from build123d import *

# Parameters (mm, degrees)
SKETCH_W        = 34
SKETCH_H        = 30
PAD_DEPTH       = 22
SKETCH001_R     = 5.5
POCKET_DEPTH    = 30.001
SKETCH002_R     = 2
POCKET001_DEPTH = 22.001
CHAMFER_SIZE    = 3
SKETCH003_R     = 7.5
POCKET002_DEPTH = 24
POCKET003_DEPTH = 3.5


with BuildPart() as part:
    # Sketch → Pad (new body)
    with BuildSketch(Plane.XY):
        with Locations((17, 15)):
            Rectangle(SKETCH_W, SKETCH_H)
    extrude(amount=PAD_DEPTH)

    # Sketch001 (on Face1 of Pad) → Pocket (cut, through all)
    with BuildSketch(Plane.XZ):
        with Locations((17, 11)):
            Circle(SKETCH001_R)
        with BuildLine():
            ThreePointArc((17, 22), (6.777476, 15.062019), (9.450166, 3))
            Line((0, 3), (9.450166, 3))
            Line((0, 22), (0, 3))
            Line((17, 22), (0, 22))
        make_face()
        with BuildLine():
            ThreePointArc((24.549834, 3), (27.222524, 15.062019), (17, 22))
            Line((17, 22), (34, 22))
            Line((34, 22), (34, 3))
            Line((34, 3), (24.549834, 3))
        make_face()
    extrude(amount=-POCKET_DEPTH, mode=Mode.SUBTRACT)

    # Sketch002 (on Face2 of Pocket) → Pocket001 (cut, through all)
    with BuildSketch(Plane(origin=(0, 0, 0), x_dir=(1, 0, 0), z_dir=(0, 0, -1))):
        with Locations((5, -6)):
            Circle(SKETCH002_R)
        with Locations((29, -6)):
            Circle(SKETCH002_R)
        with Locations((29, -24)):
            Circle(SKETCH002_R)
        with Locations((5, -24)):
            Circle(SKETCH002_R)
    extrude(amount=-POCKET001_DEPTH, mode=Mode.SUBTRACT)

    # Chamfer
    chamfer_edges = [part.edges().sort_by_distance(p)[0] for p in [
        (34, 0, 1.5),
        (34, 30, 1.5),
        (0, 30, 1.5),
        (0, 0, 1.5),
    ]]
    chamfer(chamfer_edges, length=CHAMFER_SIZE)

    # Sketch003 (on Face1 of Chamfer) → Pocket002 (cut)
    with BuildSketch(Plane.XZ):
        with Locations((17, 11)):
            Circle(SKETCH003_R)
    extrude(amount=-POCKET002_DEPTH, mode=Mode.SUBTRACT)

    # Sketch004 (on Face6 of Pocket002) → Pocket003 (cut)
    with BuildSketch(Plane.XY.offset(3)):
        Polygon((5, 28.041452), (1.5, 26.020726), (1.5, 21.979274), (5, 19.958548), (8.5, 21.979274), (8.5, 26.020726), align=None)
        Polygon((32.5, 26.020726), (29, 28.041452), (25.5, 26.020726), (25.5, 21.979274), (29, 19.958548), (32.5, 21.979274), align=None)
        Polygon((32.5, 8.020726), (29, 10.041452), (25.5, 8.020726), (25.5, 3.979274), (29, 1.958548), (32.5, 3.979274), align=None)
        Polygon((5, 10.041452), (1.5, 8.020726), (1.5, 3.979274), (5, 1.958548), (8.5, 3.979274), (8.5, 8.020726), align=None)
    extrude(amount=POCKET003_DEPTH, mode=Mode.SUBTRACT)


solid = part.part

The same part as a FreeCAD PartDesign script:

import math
import FreeCAD as App
import Part
import Sketcher

V = App.Vector
Q = App.Units.Quantity


def edges_at(feature, points):
    """Names of the edges that pass closest to the given points."""
    edges = feature.Shape.Edges
    near = lambda p: min(range(len(edges)), key=lambda i: edges[i].distToShape(Part.Vertex(*p))[0])
    return sorted({f"Edge{near(p) + 1}" for p in points})

doc = App.newDocument("Part")
body = doc.addObject("PartDesign::Body", "Body")

# Sketch on XY plane
sketch1 = body.newObject("Sketcher::SketchObject", "Sketch")
sketch1.AttachmentSupport = (doc.getObject("XY_Plane"), [""])
sketch1.MapMode = "FlatFace"
sketch1.addGeometry(Part.LineSegment(V(0, 30, 0), V(0, 0, 0)), False)
sketch1.addGeometry(Part.LineSegment(V(0, 0, 0), V(34, 0, 0)), False)
sketch1.addGeometry(Part.LineSegment(V(34, 0, 0), V(34, 30, 0)), False)
sketch1.addGeometry(Part.LineSegment(V(34, 30, 0), V(0, 30, 0)), False)
sketch1.addConstraint(Sketcher.Constraint("Coincident", 0, 2, 1, 1))
sketch1.addConstraint(Sketcher.Constraint("Coincident", 1, 2, 2, 1))
sketch1.addConstraint(Sketcher.Constraint("Coincident", 2, 2, 3, 1))
sketch1.addConstraint(Sketcher.Constraint("Coincident", 3, 2, 0, 1))
sketch1.addConstraint(Sketcher.Constraint("Vertical", 0))
sketch1.addConstraint(Sketcher.Constraint("Horizontal", 1))
sketch1.addConstraint(Sketcher.Constraint("Vertical", 2))
sketch1.addConstraint(Sketcher.Constraint("Horizontal", 3))
sketch1.addConstraint(Sketcher.Constraint("Coincident", 0, 2, -1, 1))
sketch1.addConstraint(Sketcher.Constraint("DistanceX", 1, 1, 1, 2, Q("34 mm")))
sketch1.addConstraint(Sketcher.Constraint("DistanceY", 0, 2, 0, 1, Q("30 mm")))
pad1 = body.newObject("PartDesign::Pad", "Pad")
pad1.Profile = sketch1
pad1.Length = 22

# Sketch on XZ plane
sketch2 = body.newObject("Sketcher::SketchObject", "Sketch001")
sketch2.AttachmentSupport = (doc.getObject("XZ_Plane"), [""])
sketch2.MapMode = "FlatFace"
sketch2.addGeometry(Part.Circle(V(17, 11, 0), V(0, 0, 1), 6), False)
sketch2.addGeometry(Part.ArcOfCircle(Part.Circle(V(17, 11, 0), V(0, 0, 1), 11), math.radians(90), math.radians(227)), False)
sketch2.addGeometry(Part.LineSegment(V(17, 22, 0), V(0, 22, 0)), False)
sketch2.addGeometry(Part.LineSegment(V(0, 22, 0), V(0, 3, 0)), False)
sketch2.addGeometry(Part.LineSegment(V(0, 3, 0), V(9, 3, 0)), False)
sketch2.addGeometry(Part.ArcOfCircle(Part.Circle(V(17, 11, 0), V(0, 0, 1), 11), math.radians(-47), math.radians(90)), False)
sketch2.addGeometry(Part.LineSegment(V(25, 3, 0), V(34, 3, 0)), False)
sketch2.addGeometry(Part.LineSegment(V(34, 3, 0), V(34, 22, 0)), False)
sketch2.addGeometry(Part.LineSegment(V(34, 22, 0), V(17, 22, 0)), False)
sketch2.addConstraint(Sketcher.Constraint("Tangent", 1, 1, 2, 1))
sketch2.addConstraint(Sketcher.Constraint("Coincident", 2, 2, 3, 1))
sketch2.addConstraint(Sketcher.Constraint("Coincident", 3, 2, 4, 1))
sketch2.addConstraint(Sketcher.Constraint("Coincident", 4, 2, 1, 2))
sketch2.addConstraint(Sketcher.Constraint("Coincident", 5, 1, 6, 1))
sketch2.addConstraint(Sketcher.Constraint("Coincident", 6, 2, 7, 1))
sketch2.addConstraint(Sketcher.Constraint("Coincident", 7, 2, 8, 1))
sketch2.addConstraint(Sketcher.Constraint("Tangent", 8, 2, 5, 2))
sketch2.addConstraint(Sketcher.Constraint("Horizontal", 2))
sketch2.addConstraint(Sketcher.Constraint("Vertical", 3))
sketch2.addConstraint(Sketcher.Constraint("Horizontal", 4))
sketch2.addConstraint(Sketcher.Constraint("Horizontal", 6))
sketch2.addConstraint(Sketcher.Constraint("Vertical", 7))
sketch2.addConstraint(Sketcher.Constraint("Horizontal", 8))
sketch2.addConstraint(Sketcher.Constraint("Coincident", 1, 3, 0, 3))
sketch2.addConstraint(Sketcher.Constraint("Coincident", 5, 3, 0, 3))
sketch2.addConstraint(Sketcher.Constraint("Equal", 1, 5))
sketch2.addConstraint(Sketcher.Constraint("PointOnObject", 2, 2, -2))
sketch2.addConstraint(Sketcher.Constraint("Horizontal", 4, 2, 5, 1))
sketch2.addConstraint(Sketcher.Constraint("Equal", 4, 6))
sketch2.addConstraint(Sketcher.Constraint("Diameter", 0, Q("11 mm")))
sketch2.addConstraint(Sketcher.Constraint("Radius", 1, Q("11 mm")))
sketch2.addConstraint(Sketcher.Constraint("DistanceX", 2, 2, 2, 1, Q("17 mm")))
sketch2.addConstraint(Sketcher.Constraint("DistanceY", 3, 2, 3, 1, Q("19 mm")))
sketch2.addConstraint(Sketcher.Constraint("DistanceY", -1, 1, 0, 3, Q("11 mm")))
pocket1 = body.newObject("PartDesign::Pocket", "Pocket")
pocket1.Profile = sketch2
pocket1.Type = "ThroughAll"

# Sketch on XY plane
sketch3 = body.newObject("Sketcher::SketchObject", "Sketch002")
sketch3.AttachmentSupport = (doc.getObject("XY_Plane"), [""])
sketch3.MapMode = "FlatFace"
sketch3.addGeometry(Part.Circle(V(5, 6, 0), V(0, 0, 1), 2), False)
sketch3.addGeometry(Part.Circle(V(29, 6, 0), V(0, 0, 1), 2), False)
sketch3.addGeometry(Part.Circle(V(29, 24, 0), V(0, 0, 1), 2), False)
sketch3.addGeometry(Part.Circle(V(5, 24, 0), V(0, 0, 1), 2), False)
sketch3.addConstraint(Sketcher.Constraint("Equal", 0, 1))
sketch3.addConstraint(Sketcher.Constraint("Equal", 1, 2))
sketch3.addConstraint(Sketcher.Constraint("Equal", 2, 3))
sketch3.addConstraint(Sketcher.Constraint("Horizontal", 0, 3, 1, 3))
sketch3.addConstraint(Sketcher.Constraint("Horizontal", 2, 3, 3, 3))
sketch3.addConstraint(Sketcher.Constraint("Vertical", 1, 3, 2, 3))
sketch3.addConstraint(Sketcher.Constraint("Vertical", 0, 3, 3, 3))
sketch3.addConstraint(Sketcher.Constraint("Diameter", 0, Q("4 mm")))
sketch3.addConstraint(Sketcher.Constraint("DistanceX", -1, 1, 0, 3, Q("5 mm")))
sketch3.addConstraint(Sketcher.Constraint("DistanceY", -1, 1, 0, 3, Q("6 mm")))
sketch3.addConstraint(Sketcher.Constraint("DistanceX", -1, 1, 1, 3, Q("29 mm")))
sketch3.addConstraint(Sketcher.Constraint("DistanceY", -1, 1, 2, 3, Q("24 mm")))
pocket2 = body.newObject("PartDesign::Pocket", "Pocket001")
pocket2.Profile = sketch3
pocket2.Type = "ThroughAll"
pocket2.Reversed = True
doc.recompute()

chamfer = body.newObject("PartDesign::Chamfer", "Chamfer")
chamfer.Base = (pocket2, edges_at(pocket2, [
    (34, 0, 1.5),
    (34, 30, 1.5),
    (0, 30, 1.5),
    (0, 0, 1.5),
]))
chamfer.Size = 3

# Sketch on XZ plane
sketch4 = body.newObject("Sketcher::SketchObject", "Sketch003")
sketch4.AttachmentSupport = (doc.getObject("XZ_Plane"), [""])
sketch4.MapMode = "FlatFace"
sketch4.addGeometry(Part.Circle(V(17, 11, 0), V(0, 0, 1), 8), False)
sketch4.addConstraint(Sketcher.Constraint("Diameter", 0, Q("15 mm")))
sketch4.addConstraint(Sketcher.Constraint("DistanceX", -1, 1, 0, 3, Q("17 mm")))
sketch4.addConstraint(Sketcher.Constraint("DistanceY", -1, 1, 0, 3, Q("11 mm")))
pocket3 = body.newObject("PartDesign::Pocket", "Pocket002")
pocket3.Profile = sketch4
pocket3.Length = 24

# Sketch on XY plane
sketch5 = body.newObject("Sketcher::SketchObject", "Sketch004")
sketch5.AttachmentSupport = (doc.getObject("XY_Plane"), [""])
sketch5.MapMode = "FlatFace"
sketch5.AttachmentOffset = App.Placement(V(0, 0, 3), App.Rotation())
sketch5.addGeometry(Part.LineSegment(V(5, 28, 0), V(1.5, 26, 0)), False)
sketch5.addGeometry(Part.LineSegment(V(1.5, 26, 0), V(1.5, 22, 0)), False)
sketch5.addGeometry(Part.LineSegment(V(1.5, 22, 0), V(5, 20, 0)), False)
sketch5.addGeometry(Part.LineSegment(V(5, 20, 0), V(8.5, 22, 0)), False)
sketch5.addGeometry(Part.LineSegment(V(8.5, 22, 0), V(8.5, 26, 0)), False)
sketch5.addGeometry(Part.LineSegment(V(8.5, 26, 0), V(5, 28, 0)), False)
sketch5.addGeometry(Part.LineSegment(V(32.5, 26, 0), V(29, 28, 0)), False)
sketch5.addGeometry(Part.LineSegment(V(29, 28, 0), V(25.5, 26, 0)), False)
sketch5.addGeometry(Part.LineSegment(V(25.5, 26, 0), V(25.5, 22, 0)), False)
sketch5.addGeometry(Part.LineSegment(V(25.5, 22, 0), V(29, 20, 0)), False)
sketch5.addGeometry(Part.LineSegment(V(29, 20, 0), V(32.5, 22, 0)), False)
sketch5.addGeometry(Part.LineSegment(V(32.5, 22, 0), V(32.5, 26, 0)), False)
sketch5.addGeometry(Part.LineSegment(V(32.5, 8, 0), V(29, 10, 0)), False)
sketch5.addGeometry(Part.LineSegment(V(29, 10, 0), V(25.5, 8, 0)), False)
sketch5.addGeometry(Part.LineSegment(V(25.5, 8, 0), V(25.5, 4, 0)), False)
sketch5.addGeometry(Part.LineSegment(V(25.5, 4, 0), V(29, 2, 0)), False)
sketch5.addGeometry(Part.LineSegment(V(29, 2, 0), V(32.5, 4, 0)), False)
sketch5.addGeometry(Part.LineSegment(V(32.5, 4, 0), V(32.5, 8, 0)), False)
sketch5.addGeometry(Part.LineSegment(V(5, 10, 0), V(1.5, 8, 0)), False)
sketch5.addGeometry(Part.LineSegment(V(1.5, 8, 0), V(1.5, 4, 0)), False)
sketch5.addGeometry(Part.LineSegment(V(1.5, 4, 0), V(5, 2, 0)), False)
sketch5.addGeometry(Part.LineSegment(V(5, 2, 0), V(8.5, 4, 0)), False)
sketch5.addGeometry(Part.LineSegment(V(8.5, 4, 0), V(8.5, 8, 0)), False)
sketch5.addGeometry(Part.LineSegment(V(8.5, 8, 0), V(5, 10, 0)), False)
sketch5.addConstraint(Sketcher.Constraint("Coincident", 0, 2, 1, 1))
sketch5.addConstraint(Sketcher.Constraint("Coincident", 1, 2, 2, 1))
sketch5.addConstraint(Sketcher.Constraint("Coincident", 2, 2, 3, 1))
sketch5.addConstraint(Sketcher.Constraint("Coincident", 3, 2, 4, 1))
sketch5.addConstraint(Sketcher.Constraint("Coincident", 4, 2, 5, 1))
sketch5.addConstraint(Sketcher.Constraint("Coincident", 5, 2, 0, 1))
sketch5.addConstraint(Sketcher.Constraint("Coincident", 6, 2, 7, 1))
sketch5.addConstraint(Sketcher.Constraint("Coincident", 7, 2, 8, 1))
sketch5.addConstraint(Sketcher.Constraint("Coincident", 8, 2, 9, 1))
sketch5.addConstraint(Sketcher.Constraint("Coincident", 9, 2, 10, 1))
sketch5.addConstraint(Sketcher.Constraint("Coincident", 10, 2, 11, 1))
sketch5.addConstraint(Sketcher.Constraint("Coincident", 11, 2, 6, 1))
sketch5.addConstraint(Sketcher.Constraint("Coincident", 12, 2, 13, 1))
sketch5.addConstraint(Sketcher.Constraint("Coincident", 13, 2, 14, 1))
sketch5.addConstraint(Sketcher.Constraint("Coincident", 14, 2, 15, 1))
sketch5.addConstraint(Sketcher.Constraint("Coincident", 15, 2, 16, 1))
sketch5.addConstraint(Sketcher.Constraint("Coincident", 16, 2, 17, 1))
sketch5.addConstraint(Sketcher.Constraint("Coincident", 17, 2, 12, 1))
sketch5.addConstraint(Sketcher.Constraint("Coincident", 18, 2, 19, 1))
sketch5.addConstraint(Sketcher.Constraint("Coincident", 19, 2, 20, 1))
sketch5.addConstraint(Sketcher.Constraint("Coincident", 20, 2, 21, 1))
sketch5.addConstraint(Sketcher.Constraint("Coincident", 21, 2, 22, 1))
sketch5.addConstraint(Sketcher.Constraint("Coincident", 22, 2, 23, 1))
sketch5.addConstraint(Sketcher.Constraint("Coincident", 23, 2, 18, 1))
sketch5.addConstraint(Sketcher.Constraint("Vertical", 1))
sketch5.addConstraint(Sketcher.Constraint("Vertical", 4))
sketch5.addConstraint(Sketcher.Constraint("Vertical", 8))
sketch5.addConstraint(Sketcher.Constraint("Vertical", 11))
sketch5.addConstraint(Sketcher.Constraint("Vertical", 14))
sketch5.addConstraint(Sketcher.Constraint("Vertical", 17))
sketch5.addConstraint(Sketcher.Constraint("Vertical", 19))
sketch5.addConstraint(Sketcher.Constraint("Vertical", 22))
sketch5.addConstraint(Sketcher.Constraint("Parallel", 0, 3))
sketch5.addConstraint(Sketcher.Constraint("Parallel", 2, 5))
sketch5.addConstraint(Sketcher.Constraint("Parallel", 5, 6))
sketch5.addConstraint(Sketcher.Constraint("Parallel", 3, 7))
sketch5.addConstraint(Sketcher.Constraint("Parallel", 6, 9))
sketch5.addConstraint(Sketcher.Constraint("Parallel", 7, 10))
sketch5.addConstraint(Sketcher.Constraint("Parallel", 9, 12))
sketch5.addConstraint(Sketcher.Constraint("Parallel", 10, 13))
sketch5.addConstraint(Sketcher.Constraint("Parallel", 12, 15))
sketch5.addConstraint(Sketcher.Constraint("Parallel", 13, 16))
sketch5.addConstraint(Sketcher.Constraint("Parallel", 16, 18))
sketch5.addConstraint(Sketcher.Constraint("Parallel", 15, 20))
sketch5.addConstraint(Sketcher.Constraint("Parallel", 18, 21))
sketch5.addConstraint(Sketcher.Constraint("Parallel", 20, 23))
sketch5.addConstraint(Sketcher.Constraint("Horizontal", 1, 2, 3, 2))
sketch5.addConstraint(Sketcher.Constraint("Horizontal", 0, 2, 4, 2))
sketch5.addConstraint(Sketcher.Constraint("Horizontal", 5, 2, 6, 2))
sketch5.addConstraint(Sketcher.Constraint("Horizontal", 4, 2, 7, 2))
sketch5.addConstraint(Sketcher.Constraint("Horizontal", 3, 2, 8, 2))
sketch5.addConstraint(Sketcher.Constraint("Horizontal", 2, 2, 9, 2))
sketch5.addConstraint(Sketcher.Constraint("Horizontal", 8, 2, 10, 2))
sketch5.addConstraint(Sketcher.Constraint("Horizontal", 14, 2, 16, 2))
sketch5.addConstraint(Sketcher.Constraint("Horizontal", 13, 2, 17, 2))
sketch5.addConstraint(Sketcher.Constraint("Horizontal", 17, 2, 18, 2))
sketch5.addConstraint(Sketcher.Constraint("Horizontal", 16, 2, 19, 2))
sketch5.addConstraint(Sketcher.Constraint("Horizontal", 15, 2, 20, 2))
sketch5.addConstraint(Sketcher.Constraint("Horizontal", 19, 2, 21, 2))
sketch5.addConstraint(Sketcher.Constraint("Horizontal", 18, 2, 22, 2))
sketch5.addConstraint(Sketcher.Constraint("Vertical", 2, 2, 5, 2))
sketch5.addConstraint(Sketcher.Constraint("Vertical", 9, 2, 12, 2))
sketch5.addConstraint(Sketcher.Constraint("Vertical", 8, 2, 13, 2))
sketch5.addConstraint(Sketcher.Constraint("Vertical", 1, 2, 18, 2))
sketch5.addConstraint(Sketcher.Constraint("Equal", 11, 14))
sketch5.addConstraint(Sketcher.Constraint("Angle", 0, Q("-149.999999 deg")))
sketch5.addConstraint(Sketcher.Constraint("DistanceX", -1, 1, 2, 2, Q("5 mm")))
sketch5.addConstraint(Sketcher.Constraint("DistanceX", -1, 1, 6, 2, Q("29 mm")))
sketch5.addConstraint(Sketcher.Constraint("DistanceX", 1, 2, 3, 2, Q("7 mm")))
sketch5.addConstraint(Sketcher.Constraint("DistanceY", 13, 2, 7, 2, Q("18 mm")))
sketch5.addConstraint(Sketcher.Constraint("DistanceY", 1, 2, 1, 1, Q("4.041452 mm")))
sketch5.addConstraint(Sketcher.Constraint("DistanceY", -1, 1, 2, 2, Q("19.958548 mm")))
pocket4 = body.newObject("PartDesign::Pocket", "Pocket003")
pocket4.Profile = sketch5
pocket4.Length = 3.5
pocket4.Reversed = True

doc.recompute()
